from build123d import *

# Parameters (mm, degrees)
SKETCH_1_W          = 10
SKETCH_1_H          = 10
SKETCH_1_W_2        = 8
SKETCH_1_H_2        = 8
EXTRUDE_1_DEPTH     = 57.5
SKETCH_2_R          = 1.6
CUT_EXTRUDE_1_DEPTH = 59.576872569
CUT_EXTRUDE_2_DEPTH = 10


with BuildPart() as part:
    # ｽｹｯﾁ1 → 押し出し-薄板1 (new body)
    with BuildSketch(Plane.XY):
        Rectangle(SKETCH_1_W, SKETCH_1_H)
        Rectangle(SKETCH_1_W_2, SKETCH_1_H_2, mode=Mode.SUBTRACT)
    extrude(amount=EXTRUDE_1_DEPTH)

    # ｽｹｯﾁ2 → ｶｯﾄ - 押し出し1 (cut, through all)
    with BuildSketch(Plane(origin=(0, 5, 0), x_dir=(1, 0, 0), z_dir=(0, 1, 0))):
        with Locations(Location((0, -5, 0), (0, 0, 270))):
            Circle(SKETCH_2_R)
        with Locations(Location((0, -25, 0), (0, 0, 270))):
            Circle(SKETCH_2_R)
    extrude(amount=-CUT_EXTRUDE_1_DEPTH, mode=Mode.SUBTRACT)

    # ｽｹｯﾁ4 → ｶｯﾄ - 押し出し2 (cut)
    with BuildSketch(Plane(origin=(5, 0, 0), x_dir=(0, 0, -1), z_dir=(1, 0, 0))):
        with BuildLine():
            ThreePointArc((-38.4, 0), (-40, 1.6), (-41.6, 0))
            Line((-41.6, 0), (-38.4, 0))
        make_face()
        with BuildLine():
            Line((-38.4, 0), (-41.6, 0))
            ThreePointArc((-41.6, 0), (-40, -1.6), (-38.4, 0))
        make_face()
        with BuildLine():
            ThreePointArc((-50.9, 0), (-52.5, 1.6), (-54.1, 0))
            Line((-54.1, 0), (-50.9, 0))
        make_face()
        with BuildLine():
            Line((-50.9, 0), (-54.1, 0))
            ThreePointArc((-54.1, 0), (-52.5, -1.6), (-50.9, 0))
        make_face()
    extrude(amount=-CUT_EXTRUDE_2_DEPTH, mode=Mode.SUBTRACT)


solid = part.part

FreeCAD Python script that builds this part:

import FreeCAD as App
import Part
import Sketcher
Q = App.Units.Quantity

doc = App.newDocument("Part")
body = doc.addObject("PartDesign::Body", "Body")

sketch1 = body.newObject("Sketcher::SketchObject", "Sketch")
sketch1.AttachmentSupport = (doc.getObject("XY_Plane"), [""])
sketch1.MapMode = "FlatFace"
sketch1.addGeometry([
    Part.LineSegment(App.Vector(-5, 5, 0), App.Vector(-5, -5, 0)),
    Part.LineSegment(App.Vector(-5, -5, 0), App.Vector(5, -5, 0)),
    Part.LineSegment(App.Vector(5, -5, 0), App.Vector(5, 5, 0)),
    Part.LineSegment(App.Vector(5, 5, 0), App.Vector(-5, 5, 0)),
    Part.LineSegment(App.Vector(4, -4, 0), App.Vector(-4, -4, 0)),
    Part.LineSegment(App.Vector(-4, -4, 0), App.Vector(-4, 4, 0)),
    Part.LineSegment(App.Vector(-4, 4, 0), App.Vector(4, 4, 0)),
    Part.LineSegment(App.Vector(4, 4, 0), App.Vector(4, -4, 0)),
], False)
sketch1.addConstraint([
    Sketcher.Constraint("Coincident", 0, 2, 1, 1),
    Sketcher.Constraint("Coincident", 1, 2, 2, 1),
    Sketcher.Constraint("Coincident", 2, 2, 3, 1),
    Sketcher.Constraint("Coincident", 3, 2, 0, 1),
    Sketcher.Constraint("Coincident", 4, 2, 5, 1),
    Sketcher.Constraint("Coincident", 5, 2, 6, 1),
    Sketcher.Constraint("Coincident", 6, 2, 7, 1),
    Sketcher.Constraint("Coincident", 7, 2, 4, 1),
    Sketcher.Constraint("Vertical", 0),
    Sketcher.Constraint("Horizontal", 1),
    Sketcher.Constraint("Vertical", 2),
    Sketcher.Constraint("Horizontal", 3),
    Sketcher.Constraint("Horizontal", 4),
    Sketcher.Constraint("Vertical", 5),
    Sketcher.Constraint("Horizontal", 6),
    Sketcher.Constraint("Vertical", 7),
    Sketcher.Constraint("Symmetric", 0, 2, 2, 2, -1, 1),
    Sketcher.Constraint("Symmetric", 4, 2, 6, 2, -1, 1),
    Sketcher.Constraint("Equal", 3, 0),
    Sketcher.Constraint("Equal", 6, 5),
    Sketcher.Constraint("DistanceX", 1, 1, 1, 2, Q("10 mm")),
    Sketcher.Constraint("DistanceX", 4, 2, 4, 1, Q("8 mm")),
])
pad1 = body.newObject("PartDesign::Pad", "Pad")
pad1.Profile = sketch1
pad1.Length = 57.5

sketch2 = body.newObject("Sketcher::SketchObject", "Sketch001")
sketch2.AttachmentSupport = (doc.getObject("XZ_Plane"), [""])
sketch2.MapMode = "FlatFace"
sketch2.AttachmentOffset = App.Placement(App.Vector(0, 0, -5), App.Rotation())
sketch2.addGeometry([
    Part.Circle(App.Vector(0, 5, 0), App.Vector(0, 0, 1), 1.6),
    Part.Circle(App.Vector(0, 25, 0), App.Vector(0, 0, 1), 1.6),
], False)
sketch2.addConstraint([
    Sketcher.Constraint("Equal", 0, 1),
    Sketcher.Constraint("PointOnObject", 0, 3, -2),
    Sketcher.Constraint("PointOnObject", 1, 3, -2),
    Sketcher.Constraint("Diameter", 0, Q("3.2 mm")),
    Sketcher.Constraint("DistanceY", -1, 1, 0, 3, Q("5 mm")),
    Sketcher.Constraint("DistanceY", -1, 1, 1, 3, Q("25 mm")),
])
pocket1 = body.newObject("PartDesign::Pocket", "Pocket")
pocket1.Profile = sketch2
pocket1.Type = "ThroughAll"
pocket1.Reversed = True

sketch3 = body.newObject("Sketcher::SketchObject", "Sketch002")
sketch3.AttachmentSupport = (doc.getObject("YZ_Plane"), [""])
sketch3.MapMode = "FlatFace"
sketch3.AttachmentOffset = App.Placement(App.Vector(0, 0, 5), App.Rotation())
sketch3.addGeometry([
    Part.Circle(App.Vector(0, 40, 0), App.Vector(0, 0, 1), 1.6),
    Part.Circle(App.Vector(0, 52.5, 0), App.Vector(0, 0, 1), 1.6),
], False)
sketch3.addConstraint([
    Sketcher.Constraint("Equal", 0, 1),
    Sketcher.Constraint("PointOnObject", 0, 3, -2),
    Sketcher.Constraint("PointOnObject", 1, 3, -2),
    Sketcher.Constraint("Diameter", 0, Q("3.2 mm")),
    Sketcher.Constraint("DistanceY", -1, 1, 0, 3, Q("40 mm")),
    Sketcher.Constraint("DistanceY", -1, 1, 1, 3, Q("52.5 mm")),
])
pocket2 = body.newObject("PartDesign::Pocket", "Pocket001")
pocket2.Profile = sketch3
pocket2.Length = 10

doc.recompute()
